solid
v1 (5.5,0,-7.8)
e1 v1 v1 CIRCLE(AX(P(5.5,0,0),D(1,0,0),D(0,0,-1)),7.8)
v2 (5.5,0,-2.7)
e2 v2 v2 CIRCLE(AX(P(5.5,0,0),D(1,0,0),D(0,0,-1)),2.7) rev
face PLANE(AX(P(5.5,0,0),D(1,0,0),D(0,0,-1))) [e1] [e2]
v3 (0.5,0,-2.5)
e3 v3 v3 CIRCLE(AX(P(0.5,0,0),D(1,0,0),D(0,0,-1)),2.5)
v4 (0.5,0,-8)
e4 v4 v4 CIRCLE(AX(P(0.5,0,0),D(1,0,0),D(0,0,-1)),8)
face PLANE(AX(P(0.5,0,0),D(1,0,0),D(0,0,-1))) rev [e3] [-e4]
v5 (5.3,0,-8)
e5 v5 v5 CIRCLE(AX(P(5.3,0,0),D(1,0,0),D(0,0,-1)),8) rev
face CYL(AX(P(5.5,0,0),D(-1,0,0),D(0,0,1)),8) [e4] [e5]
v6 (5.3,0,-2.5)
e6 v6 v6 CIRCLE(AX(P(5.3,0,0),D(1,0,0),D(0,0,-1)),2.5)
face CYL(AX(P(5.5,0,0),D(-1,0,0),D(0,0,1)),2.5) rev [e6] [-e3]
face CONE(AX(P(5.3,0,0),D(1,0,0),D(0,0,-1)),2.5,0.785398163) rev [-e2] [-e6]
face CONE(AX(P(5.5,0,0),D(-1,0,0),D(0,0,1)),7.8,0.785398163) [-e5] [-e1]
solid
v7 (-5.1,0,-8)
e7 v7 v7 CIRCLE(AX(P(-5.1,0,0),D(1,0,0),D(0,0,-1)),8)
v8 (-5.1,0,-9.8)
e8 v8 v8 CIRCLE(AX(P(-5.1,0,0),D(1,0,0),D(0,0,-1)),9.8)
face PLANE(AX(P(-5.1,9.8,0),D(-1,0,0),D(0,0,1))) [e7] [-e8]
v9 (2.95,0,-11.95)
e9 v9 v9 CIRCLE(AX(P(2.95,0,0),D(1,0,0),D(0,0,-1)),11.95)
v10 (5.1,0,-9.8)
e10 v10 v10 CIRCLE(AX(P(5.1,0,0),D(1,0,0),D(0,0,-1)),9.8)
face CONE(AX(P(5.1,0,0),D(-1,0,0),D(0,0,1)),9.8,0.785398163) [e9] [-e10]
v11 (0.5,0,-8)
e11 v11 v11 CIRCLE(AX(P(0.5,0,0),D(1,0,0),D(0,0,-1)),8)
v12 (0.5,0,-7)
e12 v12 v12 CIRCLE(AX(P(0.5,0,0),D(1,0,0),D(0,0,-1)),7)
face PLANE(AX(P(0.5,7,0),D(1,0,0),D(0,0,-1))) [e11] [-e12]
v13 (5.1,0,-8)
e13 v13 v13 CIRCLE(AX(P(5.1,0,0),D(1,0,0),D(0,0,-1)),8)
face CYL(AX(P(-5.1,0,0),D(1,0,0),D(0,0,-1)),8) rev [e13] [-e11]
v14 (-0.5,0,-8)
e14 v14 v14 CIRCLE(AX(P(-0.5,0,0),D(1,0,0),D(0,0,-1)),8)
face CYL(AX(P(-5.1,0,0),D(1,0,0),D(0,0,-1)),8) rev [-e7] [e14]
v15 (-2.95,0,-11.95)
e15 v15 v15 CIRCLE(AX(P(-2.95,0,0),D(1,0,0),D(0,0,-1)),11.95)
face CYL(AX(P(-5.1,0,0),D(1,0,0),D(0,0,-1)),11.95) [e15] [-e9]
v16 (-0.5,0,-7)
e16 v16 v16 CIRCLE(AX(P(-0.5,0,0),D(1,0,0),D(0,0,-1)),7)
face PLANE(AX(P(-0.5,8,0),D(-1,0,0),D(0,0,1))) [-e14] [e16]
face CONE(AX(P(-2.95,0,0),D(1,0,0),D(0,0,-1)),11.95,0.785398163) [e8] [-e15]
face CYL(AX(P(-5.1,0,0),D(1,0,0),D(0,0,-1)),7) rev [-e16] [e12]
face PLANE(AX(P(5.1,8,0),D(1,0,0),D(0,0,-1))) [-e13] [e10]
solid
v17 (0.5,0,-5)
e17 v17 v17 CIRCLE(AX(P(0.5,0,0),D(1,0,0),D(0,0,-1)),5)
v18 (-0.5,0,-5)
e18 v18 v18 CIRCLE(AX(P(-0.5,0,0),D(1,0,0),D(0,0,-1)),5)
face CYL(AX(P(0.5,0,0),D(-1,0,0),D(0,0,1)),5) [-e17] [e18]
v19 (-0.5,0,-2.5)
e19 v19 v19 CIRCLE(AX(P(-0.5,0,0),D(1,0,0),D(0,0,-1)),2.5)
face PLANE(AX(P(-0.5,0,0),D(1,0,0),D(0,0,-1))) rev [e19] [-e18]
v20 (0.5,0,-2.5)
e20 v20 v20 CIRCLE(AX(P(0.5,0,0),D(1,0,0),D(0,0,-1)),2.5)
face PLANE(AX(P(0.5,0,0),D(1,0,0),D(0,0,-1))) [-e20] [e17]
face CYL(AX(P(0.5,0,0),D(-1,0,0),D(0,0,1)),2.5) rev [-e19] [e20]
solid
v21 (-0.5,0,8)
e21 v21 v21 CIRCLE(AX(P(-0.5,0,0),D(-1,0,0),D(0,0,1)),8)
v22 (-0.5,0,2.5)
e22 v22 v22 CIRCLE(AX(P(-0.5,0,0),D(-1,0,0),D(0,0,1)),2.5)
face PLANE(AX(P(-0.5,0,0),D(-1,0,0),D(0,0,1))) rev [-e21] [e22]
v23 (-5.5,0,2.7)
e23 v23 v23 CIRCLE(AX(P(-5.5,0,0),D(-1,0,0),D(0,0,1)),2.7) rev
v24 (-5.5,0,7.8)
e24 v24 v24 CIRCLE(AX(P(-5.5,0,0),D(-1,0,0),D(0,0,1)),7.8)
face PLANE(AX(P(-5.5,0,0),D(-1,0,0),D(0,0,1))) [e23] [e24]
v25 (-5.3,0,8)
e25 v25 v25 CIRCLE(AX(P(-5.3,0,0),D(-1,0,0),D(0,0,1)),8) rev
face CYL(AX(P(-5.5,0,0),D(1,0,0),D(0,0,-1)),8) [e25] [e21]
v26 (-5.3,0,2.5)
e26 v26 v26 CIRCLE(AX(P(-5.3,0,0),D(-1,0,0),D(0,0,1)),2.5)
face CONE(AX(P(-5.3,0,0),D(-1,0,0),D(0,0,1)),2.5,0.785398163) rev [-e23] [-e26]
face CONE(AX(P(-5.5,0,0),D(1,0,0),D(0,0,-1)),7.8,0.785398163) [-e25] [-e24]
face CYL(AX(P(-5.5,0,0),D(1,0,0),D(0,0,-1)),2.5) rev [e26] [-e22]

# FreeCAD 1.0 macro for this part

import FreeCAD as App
import Part
import Sketcher
from FreeCAD import Vector
Q = App.Units.Quantity


def edges_at(feature, points):
    """Names of the edges that pass closest to the given points."""
    edges = feature.Shape.Edges
    near = lambda p: min(range(len(edges)), key=lambda i: edges[i].distToShape(Part.Vertex(*p))[0])
    return sorted({f"Edge{near(p) + 1}" for p in points})

doc = App.newDocument("Part")
body = doc.addObject("PartDesign::Body", "Body")

# Sketch on XY plane
sketch1 = body.newObject("Sketcher::SketchObject", "Sketch")
sketch1.AttachmentSupport = (doc.getObject("XY_Plane"), [""])
sketch1.MapMode = "FlatFace"
sketch1.addGeometry(Part.LineSegment(Vector(-0.5, 8, 0), Vector(-0.5, 7, 0)), False)
sketch1.addGeometry(Part.LineSegment(Vector(-0.5, 7, 0), Vector(0.5, 7, 0)), False)
sketch1.addGeometry(Part.LineSegment(Vector(0.5, 7, 0), Vector(0.5, 8, 0)), False)
sketch1.addGeometry(Part.LineSegment(Vector(0.5, 8, 0), Vector(5.1, 8, 0)), False)
sketch1.addGeometry(Part.LineSegment(Vector(5.1, 8, 0), Vector(5.1, 9.8, 0)), False)
sketch1.addGeometry(Part.LineSegment(Vector(5.1, 9.8, 0), Vector(3, 11.9, 0)), False)
sketch1.addGeometry(Part.LineSegment(Vector(3, 11.9, 0), Vector(-3, 11.9, 0)), False)
sketch1.addGeometry(Part.LineSegment(Vector(-3, 11.9, 0), Vector(-5.1, 9.8, 0)), False)
sketch1.addGeometry(Part.LineSegment(Vector(-5.1, 9.8, 0), Vector(-5.1, 8, 0)), False)
sketch1.addGeometry(Part.LineSegment(Vector(-5.1, 8, 0), Vector(-0.5, 8, 0)), False)
sketch1.addConstraint(Sketcher.Constraint("Coincident", 0, 2, 1, 1))
sketch1.addConstraint(Sketcher.Constraint("Coincident", 1, 2, 2, 1))
sketch1.addConstraint(Sketcher.Constraint("Coincident", 2, 2, 3, 1))
sketch1.addConstraint(Sketcher.Constraint("Coincident", 3, 2, 4, 1))
sketch1.addConstraint(Sketcher.Constraint("Coincident", 4, 2, 5, 1))
sketch1.addConstraint(Sketcher.Constraint("Coincident", 5, 2, 6, 1))
sketch1.addConstraint(Sketcher.Constraint("Coincident", 6, 2, 7, 1))
sketch1.addConstraint(Sketcher.Constraint("Coincident", 7, 2, 8, 1))
sketch1.addConstraint(Sketcher.Constraint("Coincident", 8, 2, 9, 1))
sketch1.addConstraint(Sketcher.Constraint("Coincident", 9, 2, 0, 1))
sketch1.addConstraint(Sketcher.Constraint("Vertical", 0))
sketch1.addConstraint(Sketcher.Constraint("Horizontal", 1))
sketch1.addConstraint(Sketcher.Constraint("Vertical", 2))
sketch1.addConstraint(Sketcher.Constraint("Horizontal", 3))
sketch1.addConstraint(Sketcher.Constraint("Vertical", 4))
sketch1.addConstraint(Sketcher.Constraint("Horizontal", 6))
sketch1.addConstraint(Sketcher.Constraint("Vertical", 8))
sketch1.addConstraint(Sketcher.Constraint("Horizontal", 9))
sketch1.addConstraint(Sketcher.Constraint("Symmetric", 4, 2, 7, 2, -2))
sketch1.addConstraint(Sketcher.Constraint("Symmetric", 2, 2, 9, 2, -2))
sketch1.addConstraint(Sketcher.Constraint("Perpendicular", 5, 7))
sketch1.addConstraint(Sketcher.Constraint("Equal", 1, 0))
sketch1.addConstraint(Sketcher.Constraint("Equal", 5, 7))
sketch1.addConstraint(Sketcher.Constraint("DistanceX", 1, 1, 1, 2, Q("1 mm")))
sketch1.addConstraint(Sketcher.Constraint("DistanceX", 3, 1, 3, 2, Q("4.6 mm")))
sketch1.addConstraint(Sketcher.Constraint("DistanceX", 6, 2, 6, 1, Q("5.9 mm")))
sketch1.addConstraint(Sketcher.Constraint("DistanceY", 4, 1, 4, 2, Q("1.8 mm")))
sketch1.addConstraint(Sketcher.Constraint("DistanceY", -1, 1, 0, 2, Q("7 mm")))
revolution = body.newObject("PartDesign::Revolution", "Revolution")
revolution.Profile = sketch1
revolution.ReferenceAxis = (sketch1, ["H_Axis"])
revolution.Angle = 360
body2 = doc.addObject("PartDesign::Body", "Body001")

# Sketch on YZ plane
sketch2 = body2.newObject("Sketcher::SketchObject", "Sketch001")
sketch2.AttachmentSupport = (doc.getObject("YZ_Plane001"), [""])
sketch2.MapMode = "FlatFace"
sketch2.AttachmentOffset = App.Placement(Vector(0, 0, 0.5), App.Rotation())
sketch2.addGeometry(Part.Circle(Vector(0, 0, 0), Vector(0, 0, 1), 8), False)
sketch2.addGeometry(Part.Circle(Vector(0, 0, 0), Vector(0, 0, 1), 2.5), False)
sketch2.addConstraint(Sketcher.Constraint("Coincident", 0, 3, -1, 1))
sketch2.addConstraint(Sketcher.Constraint("Coincident", 1, 3, -1, 1))
sketch2.addConstraint(Sketcher.Constraint("Diameter", 0, Q("16 mm")))
sketch2.addConstraint(Sketcher.Constraint("Diameter", 1, Q("5 mm")))
pad1 = body2.newObject("PartDesign::Pad", "Pad")
pad1.Profile = sketch2
pad1.Length = 5
doc.recompute()

chamfer = body2.newObject("PartDesign::Chamfer", "Chamfer")
chamfer.Base = (pad1, edges_at(pad1, [(5.5, 0, 8), (5.5, 0, 2.5)]))
chamfer.Size = 0.2
body3 = doc.addObject("PartDesign::Body", "Body002")

# Sketch on YZ plane
sketch3 = body3.newObject("Sketcher::SketchObject", "Sketch002")
sketch3.AttachmentSupport = (doc.getObject("YZ_Plane002"), [""])
sketch3.MapMode = "FlatFace"
sketch3.addGeometry(Part.Circle(Vector(0, 0, 0), Vector(0, 0, 1), 5), False)
sketch3.addGeometry(Part.Circle(Vector(0, 0, 0), Vector(0, 0, 1), 2.5), False)
sketch3.addConstraint(Sketcher.Constraint("Coincident", 0, 3, -1, 1))
sketch3.addConstraint(Sketcher.Constraint("Coincident", 1, 3, -1, 1))
sketch3.addConstraint(Sketcher.Constraint("Diameter", 0, Q("10 mm")))
sketch3.addConstraint(Sketcher.Constraint("Diameter", 1, Q("5 mm")))
pad2 = body3.newObject("PartDesign::Pad", "Pad001")
pad2.Profile = sketch3
pad2.Length = 1
pad2.Midplane = True
body4 = doc.addObject("PartDesign::Body", "Body003")

# Sketch on YZ plane
sketch4 = body4.newObject("Sketcher::SketchObject", "Sketch003")
sketch4.AttachmentSupport = (doc.getObject("YZ_Plane003"), [""])
sketch4.MapMode = "FlatFace"
sketch4.AttachmentOffset = App.Placement(Vector(0, 0, -0.5), App.Rotation())
sketch4.addGeometry(Part.Circle(Vector(0, 0, 0), Vector(0, 0, 1), 8), False)
sketch4.addGeometry(Part.Circle(Vector(0, 0, 0), Vector(0, 0, 1), 2.5), False)
sketch4.addConstraint(Sketcher.Constraint("Coincident", 0, 3, -1, 1))
sketch4.addConstraint(Sketcher.Constraint("Coincident", 1, 3, -1, 1))
sketch4.addConstraint(Sketcher.Constraint("Diameter", 0, Q("16 mm")))
sketch4.addConstraint(Sketcher.Constraint("Diameter", 1, Q("5 mm")))
pad3 = body4.newObject("PartDesign::Pad", "Pad002")
pad3.Profile = sketch4
pad3.Length = 5
pad3.Reversed = True
doc.recompute()

chamfer2 = body4.newObject("PartDesign::Chamfer", "Chamfer001")
chamfer2.Base = (pad3, edges_at(pad3, [(-5.5, 0, -8), (-5.5, 0, -2.5)]))
chamfer2.Size = 0.2

doc.recompute()
